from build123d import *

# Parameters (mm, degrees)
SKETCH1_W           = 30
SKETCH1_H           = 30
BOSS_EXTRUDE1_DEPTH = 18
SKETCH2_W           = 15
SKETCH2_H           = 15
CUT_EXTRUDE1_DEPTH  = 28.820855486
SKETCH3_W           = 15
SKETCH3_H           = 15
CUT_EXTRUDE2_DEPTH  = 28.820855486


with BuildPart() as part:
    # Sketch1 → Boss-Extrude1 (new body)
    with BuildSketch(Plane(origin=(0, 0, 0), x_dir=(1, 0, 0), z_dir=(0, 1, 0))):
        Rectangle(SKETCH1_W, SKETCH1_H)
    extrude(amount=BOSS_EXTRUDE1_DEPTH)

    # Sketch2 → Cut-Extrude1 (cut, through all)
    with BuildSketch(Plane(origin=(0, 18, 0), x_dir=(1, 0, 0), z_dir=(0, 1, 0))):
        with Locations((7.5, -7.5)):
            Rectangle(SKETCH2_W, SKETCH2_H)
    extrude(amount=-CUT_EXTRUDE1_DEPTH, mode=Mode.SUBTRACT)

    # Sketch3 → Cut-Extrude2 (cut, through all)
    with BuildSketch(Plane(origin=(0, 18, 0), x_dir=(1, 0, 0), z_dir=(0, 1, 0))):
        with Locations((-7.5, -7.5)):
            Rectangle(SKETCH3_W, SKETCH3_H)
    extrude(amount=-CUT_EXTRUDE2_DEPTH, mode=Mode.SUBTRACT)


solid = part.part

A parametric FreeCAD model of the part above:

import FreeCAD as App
import Part
import Sketcher


def add_polygon(sketch, points):
    """Adds a closed chain of lines whose ends are joined by coincident constraints."""
    first, n = sketch.GeometryCount, len(points)
    for a, b in zip(points, points[1:] + points[:1]):
        sketch.addGeometry(Part.LineSegment(App.Vector(*a, 0), App.Vector(*b, 0)), False)
    for i in range(n):
        sketch.addConstraint(Sketcher.Constraint("Coincident", first + i, 2, first + (i + 1) % n, 1))

doc = App.newDocument("Part")
body = doc.addObject("PartDesign::Body", "Body")

# Sketch on XZ plane
sketch1 = body.newObject("Sketcher::SketchObject", "Sketch")
sketch1.AttachmentSupport = (doc.getObject("XZ_Plane"), [""])
sketch1.MapMode = "FlatFace"
add_polygon(sketch1, [(-15, -15), (-15, 15), (15, 15), (15, -15)])  # lines 0-3
sketch1.addConstraint([
    Sketcher.Constraint("Vertical", 0),
    Sketcher.Constraint("Horizontal", 1),
    Sketcher.Constraint("Vertical", 2),
    Sketcher.Constraint("Horizontal", 3),
    Sketcher.Constraint("Symmetric", 0, 2, 2, 2, -1, 1),
    Sketcher.Constraint("Equal", 3, 0),
    Sketcher.Constraint("DistanceX", 1, 1, 1, 2, 30.0),
])
pad1 = body.newObject("PartDesign::Pad", "Pad")
pad1.Profile = sketch1
pad1.Length = 18
pad1.Reversed = True

# Sketch on XZ plane
sketch2 = body.newObject("Sketcher::SketchObject", "Sketch001")
sketch2.AttachmentSupport = (doc.getObject("XZ_Plane"), [""])
sketch2.MapMode = "FlatFace"
sketch2.AttachmentOffset = App.Placement(App.Vector(0, 0, -18), App.Rotation())
add_polygon(sketch2, [(0, 0), (0, 15), (15, 15), (15, 0)])  # lines 0-3
sketch2.addConstraint([
    Sketcher.Constraint("Vertical", 0),
    Sketcher.Constraint("Horizontal", 1),
    Sketcher.Constraint("Vertical", 2),
    Sketcher.Constraint("Horizontal", 3),
    Sketcher.Constraint("Coincident", 3, 2, -1, 1),
    Sketcher.Constraint("Equal", 3, 0),
    Sketcher.Constraint("DistanceX", 1, 1, 1, 2, 15.0),
])
pocket1 = body.newObject("PartDesign::Pocket", "Pocket")
pocket1.Profile = sketch2
pocket1.Type = "ThroughAll"
pocket1.Reversed = True

# Sketch on XZ plane
sketch3 = body.newObject("Sketcher::SketchObject", "Sketch002")
sketch3.AttachmentSupport = (doc.getObject("XZ_Plane"), [""])
sketch3.MapMode = "FlatFace"
sketch3.AttachmentOffset = App.Placement(App.Vector(0, 0, -18), App.Rotation())
add_polygon(sketch3, [(-15, 0), (-15, 15), (0, 15), (0, 0)])  # lines 0-3
sketch3.addConstraint([
    Sketcher.Constraint("Vertical", 0),
    Sketcher.Constraint("Horizontal", 1),
    Sketcher.Constraint("Vertical", 2),
    Sketcher.Constraint("Horizontal", 3),
    Sketcher.Constraint("Coincident", 2, 2, -1, 1),
    Sketcher.Constraint("Equal", 3, 0),
    Sketcher.Constraint("DistanceX", 1, 1, 1, 2, 15.0),
])
pocket2 = body.newObject("PartDesign::Pocket", "Pocket001")
pocket2.Profile = sketch3
pocket2.Type = "ThroughAll"
pocket2.Reversed = True

doc.recompute()
